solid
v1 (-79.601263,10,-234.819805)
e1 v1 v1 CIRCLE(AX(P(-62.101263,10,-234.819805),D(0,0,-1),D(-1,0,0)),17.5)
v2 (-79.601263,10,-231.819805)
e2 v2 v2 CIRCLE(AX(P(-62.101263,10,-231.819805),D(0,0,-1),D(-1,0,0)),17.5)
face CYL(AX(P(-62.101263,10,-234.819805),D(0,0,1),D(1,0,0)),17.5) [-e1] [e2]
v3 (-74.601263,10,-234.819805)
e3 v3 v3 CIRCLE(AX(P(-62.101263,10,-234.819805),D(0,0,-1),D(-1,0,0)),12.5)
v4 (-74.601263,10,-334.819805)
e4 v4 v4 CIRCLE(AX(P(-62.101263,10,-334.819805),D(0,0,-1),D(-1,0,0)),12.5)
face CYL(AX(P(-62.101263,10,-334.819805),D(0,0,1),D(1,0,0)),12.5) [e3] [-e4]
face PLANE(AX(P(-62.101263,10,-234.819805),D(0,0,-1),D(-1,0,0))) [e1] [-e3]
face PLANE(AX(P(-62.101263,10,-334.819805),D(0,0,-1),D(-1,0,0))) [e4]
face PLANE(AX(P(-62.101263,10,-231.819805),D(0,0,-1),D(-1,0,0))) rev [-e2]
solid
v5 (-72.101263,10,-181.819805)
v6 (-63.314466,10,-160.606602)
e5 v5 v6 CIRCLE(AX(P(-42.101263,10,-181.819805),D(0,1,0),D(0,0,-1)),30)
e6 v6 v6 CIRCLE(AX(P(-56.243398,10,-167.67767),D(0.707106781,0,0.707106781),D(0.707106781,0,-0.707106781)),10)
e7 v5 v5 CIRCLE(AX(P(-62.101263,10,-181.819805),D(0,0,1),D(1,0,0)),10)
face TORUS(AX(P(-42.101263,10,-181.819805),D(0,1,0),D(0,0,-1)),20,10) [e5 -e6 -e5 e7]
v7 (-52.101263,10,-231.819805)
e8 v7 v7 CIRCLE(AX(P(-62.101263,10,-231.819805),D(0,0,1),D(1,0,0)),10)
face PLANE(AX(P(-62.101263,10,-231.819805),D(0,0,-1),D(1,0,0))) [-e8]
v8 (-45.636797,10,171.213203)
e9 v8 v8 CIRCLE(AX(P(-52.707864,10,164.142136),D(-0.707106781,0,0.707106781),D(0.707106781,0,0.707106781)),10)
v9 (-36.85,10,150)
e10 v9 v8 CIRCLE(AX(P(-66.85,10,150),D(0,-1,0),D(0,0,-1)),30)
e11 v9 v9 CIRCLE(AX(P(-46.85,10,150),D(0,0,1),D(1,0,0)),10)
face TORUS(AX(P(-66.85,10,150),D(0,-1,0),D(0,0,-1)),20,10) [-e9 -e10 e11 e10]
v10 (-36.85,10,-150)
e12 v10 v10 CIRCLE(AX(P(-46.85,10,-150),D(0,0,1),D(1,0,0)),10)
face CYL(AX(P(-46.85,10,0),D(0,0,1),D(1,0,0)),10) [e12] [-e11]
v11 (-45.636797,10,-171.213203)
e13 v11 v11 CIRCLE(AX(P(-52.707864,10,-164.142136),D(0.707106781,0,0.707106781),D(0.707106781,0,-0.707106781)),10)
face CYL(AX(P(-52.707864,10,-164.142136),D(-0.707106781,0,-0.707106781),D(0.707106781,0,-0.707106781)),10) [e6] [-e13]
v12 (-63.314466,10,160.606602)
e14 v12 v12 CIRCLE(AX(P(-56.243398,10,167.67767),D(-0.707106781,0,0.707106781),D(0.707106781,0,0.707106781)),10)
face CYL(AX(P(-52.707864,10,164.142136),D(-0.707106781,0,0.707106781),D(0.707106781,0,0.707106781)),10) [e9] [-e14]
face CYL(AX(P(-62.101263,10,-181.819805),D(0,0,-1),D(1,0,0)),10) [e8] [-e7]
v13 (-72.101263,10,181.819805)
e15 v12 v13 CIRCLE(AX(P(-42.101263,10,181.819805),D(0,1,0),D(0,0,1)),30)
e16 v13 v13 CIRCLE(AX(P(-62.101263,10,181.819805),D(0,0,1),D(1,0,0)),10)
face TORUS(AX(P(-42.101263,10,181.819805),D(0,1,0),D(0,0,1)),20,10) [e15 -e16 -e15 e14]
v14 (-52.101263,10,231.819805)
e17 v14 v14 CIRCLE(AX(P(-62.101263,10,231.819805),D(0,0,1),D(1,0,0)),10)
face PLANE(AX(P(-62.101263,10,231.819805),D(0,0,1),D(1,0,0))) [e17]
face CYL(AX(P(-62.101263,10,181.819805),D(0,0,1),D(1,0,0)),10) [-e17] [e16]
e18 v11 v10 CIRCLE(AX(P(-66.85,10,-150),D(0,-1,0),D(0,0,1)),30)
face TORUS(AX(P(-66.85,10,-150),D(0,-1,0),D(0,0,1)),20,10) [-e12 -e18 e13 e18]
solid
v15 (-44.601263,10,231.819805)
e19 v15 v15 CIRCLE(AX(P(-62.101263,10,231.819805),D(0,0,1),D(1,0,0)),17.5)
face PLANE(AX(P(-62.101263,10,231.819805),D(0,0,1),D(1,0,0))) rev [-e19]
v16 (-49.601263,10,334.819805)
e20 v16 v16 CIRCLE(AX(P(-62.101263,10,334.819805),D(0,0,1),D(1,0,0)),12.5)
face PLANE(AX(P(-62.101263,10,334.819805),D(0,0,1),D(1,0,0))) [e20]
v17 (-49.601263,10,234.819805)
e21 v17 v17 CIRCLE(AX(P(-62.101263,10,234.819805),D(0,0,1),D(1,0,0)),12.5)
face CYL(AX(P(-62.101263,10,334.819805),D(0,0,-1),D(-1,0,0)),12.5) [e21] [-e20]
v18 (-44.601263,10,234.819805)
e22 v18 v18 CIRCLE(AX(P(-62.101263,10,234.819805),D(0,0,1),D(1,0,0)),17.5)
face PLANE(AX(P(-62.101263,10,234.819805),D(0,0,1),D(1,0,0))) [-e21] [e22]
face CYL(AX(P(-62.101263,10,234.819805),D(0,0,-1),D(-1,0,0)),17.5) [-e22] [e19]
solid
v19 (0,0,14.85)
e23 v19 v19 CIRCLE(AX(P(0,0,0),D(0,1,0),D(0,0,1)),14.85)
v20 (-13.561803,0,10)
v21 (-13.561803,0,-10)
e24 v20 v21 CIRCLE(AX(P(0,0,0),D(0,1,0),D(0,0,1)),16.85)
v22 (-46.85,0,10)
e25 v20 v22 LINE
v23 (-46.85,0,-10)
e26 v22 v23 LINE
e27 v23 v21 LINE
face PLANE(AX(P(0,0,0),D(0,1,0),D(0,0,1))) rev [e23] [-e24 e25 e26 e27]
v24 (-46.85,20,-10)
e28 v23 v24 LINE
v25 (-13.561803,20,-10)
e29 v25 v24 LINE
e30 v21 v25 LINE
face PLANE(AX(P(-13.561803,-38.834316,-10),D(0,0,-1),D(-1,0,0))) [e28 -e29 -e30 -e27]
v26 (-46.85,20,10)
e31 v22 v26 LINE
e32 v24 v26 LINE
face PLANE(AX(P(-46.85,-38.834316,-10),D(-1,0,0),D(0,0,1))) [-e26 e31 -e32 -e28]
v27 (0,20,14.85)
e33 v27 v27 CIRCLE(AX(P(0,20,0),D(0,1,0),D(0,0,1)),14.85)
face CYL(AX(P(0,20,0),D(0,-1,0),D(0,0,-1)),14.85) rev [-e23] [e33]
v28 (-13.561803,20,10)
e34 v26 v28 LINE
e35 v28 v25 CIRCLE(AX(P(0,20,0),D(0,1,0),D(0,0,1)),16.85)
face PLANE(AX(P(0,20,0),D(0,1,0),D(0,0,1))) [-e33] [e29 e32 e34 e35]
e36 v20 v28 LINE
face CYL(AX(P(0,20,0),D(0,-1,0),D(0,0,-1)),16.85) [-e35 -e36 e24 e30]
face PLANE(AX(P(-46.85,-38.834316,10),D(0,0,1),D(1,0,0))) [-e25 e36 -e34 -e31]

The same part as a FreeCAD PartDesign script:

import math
import FreeCAD as App
import Part
import Sketcher

V = App.Vector
Q = App.Units.Quantity

doc = App.newDocument("Part")
params = doc.addObject("Spreadsheet::Sheet", "Params")
for row, (alias, value) in enumerate([
    ("sketch1_diameter", "33.7 mm"),
    ("sketch1_diameter2", "29.7 mm"),
    ("pad1_length", "20 mm"),
    ("sketch2_height", "20 mm"),
    ("sketch2_radius", "16.85 mm"),
    ("pad2_length", "20 mm"),
    ("sketch3_diameter", "20 mm"),
    ("sketch4_radius", "20 mm"),
    ("sketch4_height", "150 mm"),
    ("sketch4_height2", "50 mm"),
    ("sketch4_length", "5 mm"),
    ("sketch5_diameter", "35 mm"),
    ("pad3_length", "3 mm"),
    ("sketch6_diameter", "25 mm"),
    ("pad4_length", "100 mm"),
    ("sketch7_diameter", "35 mm"),
    ("pad5_length", "3 mm"),
    ("sketch8_diameter", "25 mm"),
    ("pad6_length", "100 mm"),
], start=1):
    params.set(f"A{row}", alias)
    params.set(f"B{row}", "=" + value)
    params.setAlias(f"B{row}", alias)

body = doc.addObject("PartDesign::Body", "Body")

# Sketch on XZ plane
sketch1 = doc.addObject("Sketcher::SketchObject", "Sketch")
body.addObject(sketch1)
sketch1.AttachmentSupport = (doc.XZ_Plane, [""])
sketch1.MapMode = "FlatFace"
sketch1.addGeometry([
    Part.Circle(V(0, 0, 0), V(0, 0, 1), 16.85),
    Part.Circle(V(0, 0, 0), V(0, 0, 1), 14.85),
], False)
sketch1.addConstraint([
    Sketcher.Constraint("Coincident", 0, 3, -1, 1),
    Sketcher.Constraint("Coincident", 1, 3, -1, 1),
    Sketcher.Constraint("Diameter", 0, Q("33.7 mm")),
    Sketcher.Constraint("Diameter", 1, Q("29.7 mm")),
])
sketch1.setExpression("Constraints[2]", "Params.sketch1_diameter")
sketch1.setExpression("Constraints[3]", "Params.sketch1_diameter2")
pad1 = doc.addObject("PartDesign::Pad", "Pad")
body.addObject(pad1)
pad1.Profile = sketch1
pad1.setExpression("Length", "Params.pad1_length")
pad1.Reversed = True

# Sketch on XZ plane
sketch2 = doc.addObject("Sketcher::SketchObject", "Sketch001")
body.addObject(sketch2)
sketch2.AttachmentSupport = (doc.XZ_Plane, [""])
sketch2.MapMode = "FlatFace"
sketch2.AttachmentOffset = App.Placement(V(0, 0, -20), App.Rotation())
sketch2.addGeometry([
    Part.LineSegment(V(-13.561803, -10, 0), V(-46.85, -10, 0)),
    Part.LineSegment(V(-46.85, -10, 0), V(-46.85, 10, 0)),
    Part.LineSegment(V(-46.85, 10, 0), V(-13.561803, 10, 0)),
    Part.ArcOfCircle(Part.Circle(V(0, 0, 0), V(0, 0, 1), 16.85), math.radians(143.596233), math.radians(216.403767)),
], False)
sketch2.addConstraint([
    Sketcher.Constraint("Coincident", 0, 2, 1, 1),
    Sketcher.Constraint("Coincident", 1, 2, 2, 1),
    Sketcher.Constraint("Coincident", 2, 2, 3, 1),
    Sketcher.Constraint("Coincident", 3, 2, 0, 1),
    Sketcher.Constraint("Horizontal", 0),
    Sketcher.Constraint("Vertical", 1),
    Sketcher.Constraint("Horizontal", 2),
    Sketcher.Constraint("Coincident", 3, 3, -1, 1),
    Sketcher.Constraint("Vertical", 2, 2, 3, 2),
    Sketcher.Constraint("DistanceY", 1, 1, 1, 2, Q("20 mm")),
    Sketcher.Constraint("Radius", 3, Q("16.85 mm")),
    Sketcher.Constraint("DistanceX", 0, 2, -1, 1, Q("46.85 mm")),
])
sketch2.setExpression("Constraints[9]", "Params.sketch2_height")
sketch2.setExpression("Constraints[10]", "Params.sketch2_radius")
pad2 = doc.addObject("PartDesign::Pad", "Pad001")
body.addObject(pad2)
pad2.Profile = sketch2
pad2.setExpression("Length", "Params.pad2_length")
body2 = doc.addObject("PartDesign::Body", "Body001")

# Sketch on XY plane
sketch3 = doc.addObject("Sketcher::SketchObject", "Sketch002")
body2.addObject(sketch3)
sketch3.AttachmentSupport = (doc.getObject("XY_Plane001"), [""])
sketch3.MapMode = "FlatFace"
sketch3.addGeometry(Part.Circle(V(-46.85, 10, 0), V(0, 0, 1), 10), False)
sketch3.addConstraint([
    Sketcher.Constraint("Diameter", 0, Q("20 mm")),
    Sketcher.Constraint("DistanceY", -1, 1, 0, 3, Q("10 mm")),
    Sketcher.Constraint("DistanceX", 0, 3, -1, 1, Q("46.85 mm")),
])
sketch3.setExpression("Constraints[0]", "Params.sketch3_diameter")

# Sketch on XZ plane
sketch4 = doc.addObject("Sketcher::SketchObject", "Sketch003")
body2.addObject(sketch4)
sketch4.AttachmentSupport = (doc.getObject("XZ_Plane001"), [""])
sketch4.MapMode = "FlatFace"
sketch4.addGeometry([
    Part.LineSegment(V(-46.85, 0, 0), V(-46.85, 150, 0)),  # 0
    Part.ArcOfCircle(Part.Circle(V(-66.85, 150, 0), V(0, 0, 1), 20), math.radians(0), math.radians(45)),  # 1
    Part.LineSegment(V(-52.707864, 164.142136, 0), V(-56.243398, 167.67767, 0)),  # 2
    Part.ArcOfCircle(Part.Circle(V(-42.101263, 181.819805, 0), V(0, 0, 1), 20), math.radians(180), math.radians(225)),  # 3
    Part.LineSegment(V(-62.101263, 181.819805, 0), V(-62.101263, 231.819805, 0)),  # 4
], False)
sketch4.addConstraint([
    Sketcher.Constraint("Tangent", 0, 2, 1, 1),
    Sketcher.Constraint("Tangent", 1, 2, 2, 1),
    Sketcher.Constraint("Tangent", 2, 2, 3, 2),
    Sketcher.Constraint("Tangent", 3, 1, 4, 1),
    Sketcher.Constraint("Vertical", 0),
    Sketcher.Constraint("Vertical", 4),
    Sketcher.Constraint("Equal", 1, 3),
    Sketcher.Constraint("PointOnObject", 0, 1, -1),
    Sketcher.Constraint("Radius", 1, Q("20 mm")),
    Sketcher.Constraint("DistanceY", 0, 1, 0, 2, Q("150 mm")),
    Sketcher.Constraint("DistanceY", 4, 1, 4, 2, Q("50 mm")),
    Sketcher.Constraint("Angle", 2, Q("135 deg")),
    Sketcher.Constraint("Distance", 2, Q("5 mm")),
    Sketcher.Constraint("DistanceX", 1, 3, -1, 1, Q("66.85 mm")),
])
sketch4.setExpression("Constraints[8]", "Params.sketch4_radius")
sketch4.setExpression("Constraints[9]", "Params.sketch4_height")
sketch4.setExpression("Constraints[10]", "Params.sketch4_height2")
sketch4.setExpression("Constraints[12]", "Params.sketch4_length")
doc.recompute()

additivepipe = doc.addObject("PartDesign::AdditivePipe", "AdditivePipe")
body2.addObject(additivepipe)
additivepipe.Profile = sketch3
additivepipe.Spine = (sketch4, ["Edge1", "Edge2", "Edge3", "Edge4", "Edge5"])
doc.recompute()

mirrored = doc.addObject("PartDesign::Mirrored", "Mirrored")
body2.addObject(mirrored)
mirrored.Originals = [additivepipe]
mirrored.MirrorPlane = (doc.getObject("XY_Plane001"), [""])
body2.Tip = mirrored
body3 = doc.addObject("PartDesign::Body", "Body002")

# Sketch on XY plane
sketch5 = doc.addObject("Sketcher::SketchObject", "Sketch004")
body3.addObject(sketch5)
sketch5.AttachmentSupport = (doc.getObject("XY_Plane002"), [""])
sketch5.MapMode = "FlatFace"
sketch5.AttachmentOffset = App.Placement(V(0, 0, 231.819805), App.Rotation())
sketch5.addGeometry(Part.Circle(V(-62.101263, 10, 0), V(0, 0, 1), 17.5), False)
sketch5.addConstraint([
    Sketcher.Constraint("Diameter", 0, Q("35 mm")),
    Sketcher.Constraint("DistanceY", -1, 1, 0, 3, Q("10 mm")),
    Sketcher.Constraint("DistanceX", 0, 3, -1, 1, Q("62.101263 mm")),
])
sketch5.setExpression("Constraints[0]", "Params.sketch5_diameter")
pad3 = doc.addObject("PartDesign::Pad", "Pad002")
body3.addObject(pad3)
pad3.Profile = sketch5
pad3.setExpression("Length", "Params.pad3_length")

# Sketch on XY plane
sketch6 = doc.addObject("Sketcher::SketchObject", "Sketch005")
body3.addObject(sketch6)
sketch6.AttachmentSupport = (doc.getObject("XY_Plane002"), [""])
sketch6.MapMode = "FlatFace"
sketch6.AttachmentOffset = App.Placement(V(0, 0, 234.819805), App.Rotation())
sketch6.addGeometry(Part.Circle(V(-62.101263, 10, 0), V(0, 0, 1), 12.5), False)
sketch6.addConstraint([
    Sketcher.Constraint("Diameter", 0, Q("25 mm")),
    Sketcher.Constraint("DistanceY", -1, 1, 0, 3, Q("10 mm")),
    Sketcher.Constraint("DistanceX", 0, 3, -1, 1, Q("62.101263 mm")),
])
sketch6.setExpression("Constraints[0]", "Params.sketch6_diameter")
pad4 = doc.addObject("PartDesign::Pad", "Pad003")
body3.addObject(pad4)
pad4.Profile = sketch6
pad4.setExpression("Length", "Params.pad4_length")
body4 = doc.addObject("PartDesign::Body", "Body003")

# Sketch on XY plane
sketch7 = doc.addObject("Sketcher::SketchObject", "Sketch006")
body4.addObject(sketch7)
sketch7.AttachmentSupport = (doc.getObject("XY_Plane003"), [""])
sketch7.MapMode = "FlatFace"
sketch7.AttachmentOffset = App.Placement(V(0, 0, -231.819805), App.Rotation())
sketch7.addGeometry(Part.Circle(V(-62.101263, 10, 0), V(0, 0, 1), 17.5), False)
sketch7.addConstraint([
    Sketcher.Constraint("Diameter", 0, Q("35 mm")),
    Sketcher.Constraint("DistanceY", -1, 1, 0, 3, Q("10 mm")),
    Sketcher.Constraint("DistanceX", 0, 3, -1, 1, Q("62.101263 mm")),
])
sketch7.setExpression("Constraints[0]", "Params.sketch7_diameter")
pad5 = doc.addObject("PartDesign::Pad", "Pad004")
body4.addObject(pad5)
pad5.Profile = sketch7
pad5.setExpression("Length", "Params.pad5_length")
pad5.Reversed = True

# Sketch on XY plane
sketch8 = doc.addObject("Sketcher::SketchObject", "Sketch007")
body4.addObject(sketch8)
sketch8.AttachmentSupport = (doc.getObject("XY_Plane003"), [""])
sketch8.MapMode = "FlatFace"
sketch8.AttachmentOffset = App.Placement(V(0, 0, -234.819805), App.Rotation())
sketch8.addGeometry(Part.Circle(V(-62.101263, 10, 0), V(0, 0, 1), 12.5), False)
sketch8.addConstraint([
    Sketcher.Constraint("Diameter", 0, Q("25 mm")),
    Sketcher.Constraint("DistanceY", -1, 1, 0, 3, Q("10 mm")),
    Sketcher.Constraint("DistanceX", 0, 3, -1, 1, Q("62.101263 mm")),
])
sketch8.setExpression("Constraints[0]", "Params.sketch8_diameter")
pad6 = doc.addObject("PartDesign::Pad", "Pad005")
body4.addObject(pad6)
pad6.Profile = sketch8
pad6.setExpression("Length", "Params.pad6_length")
pad6.Reversed = True

doc.recompute()
